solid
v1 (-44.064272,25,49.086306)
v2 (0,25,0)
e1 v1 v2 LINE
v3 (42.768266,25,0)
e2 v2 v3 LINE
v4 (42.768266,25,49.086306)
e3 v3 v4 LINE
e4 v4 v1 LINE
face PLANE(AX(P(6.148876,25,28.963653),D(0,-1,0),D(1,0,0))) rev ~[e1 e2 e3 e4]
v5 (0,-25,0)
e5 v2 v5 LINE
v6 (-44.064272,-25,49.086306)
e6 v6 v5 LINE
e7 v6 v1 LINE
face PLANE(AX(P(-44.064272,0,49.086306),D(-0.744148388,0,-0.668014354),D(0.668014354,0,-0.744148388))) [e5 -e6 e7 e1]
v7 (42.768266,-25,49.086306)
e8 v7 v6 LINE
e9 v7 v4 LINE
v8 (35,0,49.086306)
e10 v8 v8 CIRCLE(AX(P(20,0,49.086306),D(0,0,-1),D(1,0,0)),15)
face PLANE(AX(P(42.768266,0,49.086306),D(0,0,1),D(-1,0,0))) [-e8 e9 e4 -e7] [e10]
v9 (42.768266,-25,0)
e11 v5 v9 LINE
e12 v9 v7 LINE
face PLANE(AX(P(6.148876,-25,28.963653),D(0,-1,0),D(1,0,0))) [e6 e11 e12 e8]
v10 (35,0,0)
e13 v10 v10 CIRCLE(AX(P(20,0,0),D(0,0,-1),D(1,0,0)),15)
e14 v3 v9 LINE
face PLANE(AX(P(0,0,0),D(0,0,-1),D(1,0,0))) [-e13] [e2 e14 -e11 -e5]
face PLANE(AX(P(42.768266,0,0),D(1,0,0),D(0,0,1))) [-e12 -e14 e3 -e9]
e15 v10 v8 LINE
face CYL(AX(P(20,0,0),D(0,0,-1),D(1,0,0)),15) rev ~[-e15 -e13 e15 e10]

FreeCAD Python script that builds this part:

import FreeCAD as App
import Part
import Sketcher
from FreeCAD import Vector

doc = App.newDocument("Part")
body = doc.addObject("PartDesign::Body", "Body")

# Sketch on XZ plane
sketch1 = body.newObject("Sketcher::SketchObject", "Sketch")
sketch1.AttachmentSupport = (doc.getObject("XZ_Plane"), [""])
sketch1.MapMode = "FlatFace"
sketch1.addGeometry(Part.LineSegment(Vector(-44.064272, 49.086306, 0), Vector(0, 0, 0)), False)
sketch1.addGeometry(Part.LineSegment(Vector(0, 0, 0), Vector(42.768266, 0, 0)), False)
sketch1.addGeometry(Part.LineSegment(Vector(42.768266, 0, 0), Vector(42.768266, 49.086306, 0)), False)
sketch1.addGeometry(Part.LineSegment(Vector(42.768266, 49.086306, 0), Vector(-44.064272, 49.086306, 0)), False)
sketch1.addConstraint(Sketcher.Constraint("Coincident", 0, 2, 1, 1))
sketch1.addConstraint(Sketcher.Constraint("Coincident", 1, 2, 2, 1))
sketch1.addConstraint(Sketcher.Constraint("Coincident", 2, 2, 3, 1))
sketch1.addConstraint(Sketcher.Constraint("Coincident", 3, 2, 0, 1))
sketch1.addConstraint(Sketcher.Constraint("Horizontal", 1))
sketch1.addConstraint(Sketcher.Constraint("Vertical", 2))
sketch1.addConstraint(Sketcher.Constraint("Horizontal", 3))
sketch1.addConstraint(Sketcher.Constraint("Coincident", 0, 2, -1, 1))
sketch1.addConstraint(Sketcher.Constraint("DistanceX", 3, 2, 3, 1, 86.832538))
sketch1.addConstraint(Sketcher.Constraint("Distance", 0, 65.963062))
sketch1.addConstraint(Sketcher.Constraint("DistanceX", 1, 1, 1, 2, 42.768266))
pad1 = body.newObject("PartDesign::Pad", "Pad")
pad1.Profile = sketch1
pad1.Length = 50
pad1.Midplane = True

# Sketch on XY plane
sketch2 = body.newObject("Sketcher::SketchObject", "Sketch001")
sketch2.AttachmentSupport = (doc.getObject("XY_Plane"), [""])
sketch2.MapMode = "FlatFace"
sketch2.addGeometry(Part.Circle(Vector(20, 0, 0), Vector(0, 0, 1), 15), False)
sketch2.addConstraint(Sketcher.Constraint("PointOnObject", 0, 3, -1))
sketch2.addConstraint(Sketcher.Constraint("Diameter", 0, 30.0))
sketch2.addConstraint(Sketcher.Constraint("DistanceX", -1, 1, 0, 3, 20.0))
pocket1 = body.newObject("PartDesign::Pocket", "Pocket")
pocket1.Profile = sketch2
pocket1.Type = "ThroughAll"
pocket1.Reversed = True

doc.recompute()
